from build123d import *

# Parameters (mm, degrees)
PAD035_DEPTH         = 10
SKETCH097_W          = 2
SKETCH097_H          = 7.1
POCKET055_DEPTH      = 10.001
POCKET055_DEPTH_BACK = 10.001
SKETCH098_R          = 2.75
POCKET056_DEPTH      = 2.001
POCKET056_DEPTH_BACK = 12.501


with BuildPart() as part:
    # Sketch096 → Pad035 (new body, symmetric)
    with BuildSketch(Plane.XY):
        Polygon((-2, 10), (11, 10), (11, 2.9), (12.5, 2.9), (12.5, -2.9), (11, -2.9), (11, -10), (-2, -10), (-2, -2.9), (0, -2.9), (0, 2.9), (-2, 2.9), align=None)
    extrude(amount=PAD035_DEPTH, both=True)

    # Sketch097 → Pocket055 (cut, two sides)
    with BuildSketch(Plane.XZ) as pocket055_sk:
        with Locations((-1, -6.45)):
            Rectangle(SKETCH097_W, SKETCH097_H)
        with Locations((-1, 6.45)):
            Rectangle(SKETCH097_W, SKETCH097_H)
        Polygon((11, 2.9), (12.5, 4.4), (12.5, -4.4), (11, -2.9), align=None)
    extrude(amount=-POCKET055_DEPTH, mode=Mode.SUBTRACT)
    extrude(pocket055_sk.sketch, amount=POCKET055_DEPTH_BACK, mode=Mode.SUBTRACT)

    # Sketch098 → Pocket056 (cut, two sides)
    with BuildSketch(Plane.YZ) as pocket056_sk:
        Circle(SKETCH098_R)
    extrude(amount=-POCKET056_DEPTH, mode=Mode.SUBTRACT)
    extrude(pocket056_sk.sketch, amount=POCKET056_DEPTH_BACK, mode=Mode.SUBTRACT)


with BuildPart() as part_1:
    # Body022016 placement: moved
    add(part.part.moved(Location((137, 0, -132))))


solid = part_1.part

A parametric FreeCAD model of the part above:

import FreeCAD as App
import Part
import Sketcher
from FreeCAD import Vector

doc = App.newDocument("Part")
body = doc.addObject("PartDesign::Body", "Body")

# Sketch on XY plane
sketch1 = body.newObject("Sketcher::SketchObject", "Sketch")
sketch1.AttachmentSupport = (doc.getObject("XY_Plane"), [""])
sketch1.MapMode = "FlatFace"
sketch1.addGeometry([
    Part.LineSegment(Vector(11, 10, 0), Vector(-2, 10, 0)),  # 0
    Part.LineSegment(Vector(-2, 10, 0), Vector(-2, 2.9, 0)),  # 1
    Part.LineSegment(Vector(-2, 2.9, 0), Vector(0, 2.9, 0)),  # 2
    Part.LineSegment(Vector(0, 2.9, 0), Vector(0, -2.9, 0)),  # 3
    Part.LineSegment(Vector(0, -2.9, 0), Vector(-2, -2.9, 0)),  # 4
    Part.LineSegment(Vector(-2, -2.9, 0), Vector(-2, -10, 0)),  # 5
    Part.LineSegment(Vector(-2, -10, 0), Vector(11, -10, 0)),  # 6
    Part.LineSegment(Vector(11, -10, 0), Vector(11, -2.9, 0)),  # 7
    Part.LineSegment(Vector(11, -2.9, 0), Vector(12.5, -2.9, 0)),  # 8
    Part.LineSegment(Vector(12.5, -2.9, 0), Vector(12.5, 2.9, 0)),  # 9
    Part.LineSegment(Vector(12.5, 2.9, 0), Vector(11, 2.9, 0)),  # 10
    Part.LineSegment(Vector(11, 2.9, 0), Vector(11, 10, 0)),  # 11
], False)
sketch1.addConstraint([
    Sketcher.Constraint("Coincident", 0, 2, 1, 1),
    Sketcher.Constraint("Coincident", 1, 2, 2, 1),
    Sketcher.Constraint("Coincident", 2, 2, 3, 1),
    Sketcher.Constraint("Coincident", 3, 2, 4, 1),
    Sketcher.Constraint("Coincident", 4, 2, 5, 1),
    Sketcher.Constraint("Coincident", 5, 2, 6, 1),
    Sketcher.Constraint("Coincident", 6, 2, 7, 1),
    Sketcher.Constraint("Coincident", 7, 2, 8, 1),
    Sketcher.Constraint("Coincident", 8, 2, 9, 1),
    Sketcher.Constraint("Coincident", 9, 2, 10, 1),
    Sketcher.Constraint("Coincident", 10, 2, 11, 1),
    Sketcher.Constraint("Coincident", 11, 2, 0, 1),
    Sketcher.Constraint("Horizontal", 0),
    Sketcher.Constraint("Vertical", 1),
    Sketcher.Constraint("Horizontal", 2),
    Sketcher.Constraint("Vertical", 3),
    Sketcher.Constraint("Horizontal", 4),
    Sketcher.Constraint("Vertical", 5),
    Sketcher.Constraint("Horizontal", 6),
    Sketcher.Constraint("Vertical", 7),
    Sketcher.Constraint("Horizontal", 8),
    Sketcher.Constraint("Vertical", 9),
    Sketcher.Constraint("Horizontal", 10),
    Sketcher.Constraint("Vertical", 11),
    Sketcher.Constraint("Symmetric", 2, 2, 3, 2, -1, 1),
    Sketcher.Constraint("Symmetric", 0, 2, 5, 2, -1),
    Sketcher.Constraint("Symmetric", 7, 2, 10, 2, -1),
    Sketcher.Constraint("Horizontal", 4, 2, 7, 2),
    Sketcher.Constraint("DistanceX", 0, 2, 0, 1, 13.0),
    Sketcher.Constraint("DistanceX", 2, 1, 2, 2, 2.0),
    Sketcher.Constraint("DistanceX", 8, 1, 8, 2, 1.5),
    Sketcher.Constraint("DistanceY", 1, 2, 1, 1, 7.1),
    Sketcher.Constraint("DistanceY", 3, 2, 3, 1, 5.8),
])
pad1 = body.newObject("PartDesign::Pad", "Pad")
pad1.Profile = sketch1
pad1.Length = 20
pad1.Midplane = True

# Sketch on XZ plane
sketch2 = body.newObject("Sketcher::SketchObject", "Sketch001")
sketch2.AttachmentSupport = (doc.getObject("XZ_Plane"), [""])
sketch2.MapMode = "FlatFace"
sketch2.addGeometry([
    Part.LineSegment(Vector(-2, -2.9, 0), Vector(-2, -10, 0)),  # 0
    Part.LineSegment(Vector(-2, -10, 0), Vector(0, -10, 0)),  # 1
    Part.LineSegment(Vector(0, -10, 0), Vector(0, -2.9, 0)),  # 2
    Part.LineSegment(Vector(0, -2.9, 0), Vector(-2, -2.9, 0)),  # 3
    Part.LineSegment(Vector(-2, 10, 0), Vector(-2, 2.9, 0)),  # 4
    Part.LineSegment(Vector(-2, 2.9, 0), Vector(0, 2.9, 0)),  # 5
    Part.LineSegment(Vector(0, 2.9, 0), Vector(0, 10, 0)),  # 6
    Part.LineSegment(Vector(0, 10, 0), Vector(-2, 10, 0)),  # 7
    Part.LineSegment(Vector(12.5, 4.4, 0), Vector(11, 2.9, 0)),  # 8
    Part.LineSegment(Vector(11, 2.9, 0), Vector(11, -2.9, 0)),  # 9
    Part.LineSegment(Vector(11, -2.9, 0), Vector(12.5, -4.4, 0)),  # 10
    Part.LineSegment(Vector(12.5, -4.4, 0), Vector(12.5, 4.4, 0)),  # 11
], False)
sketch2.addConstraint([
    Sketcher.Constraint("Coincident", 0, 2, 1, 1),
    Sketcher.Constraint("Coincident", 1, 2, 2, 1),
    Sketcher.Constraint("Coincident", 2, 2, 3, 1),
    Sketcher.Constraint("Coincident", 3, 2, 0, 1),
    Sketcher.Constraint("Coincident", 4, 2, 5, 1),
    Sketcher.Constraint("Coincident", 5, 2, 6, 1),
    Sketcher.Constraint("Coincident", 6, 2, 7, 1),
    Sketcher.Constraint("Coincident", 7, 2, 4, 1),
    Sketcher.Constraint("Coincident", 8, 2, 9, 1),
    Sketcher.Constraint("Coincident", 9, 2, 10, 1),
    Sketcher.Constraint("Coincident", 10, 2, 11, 1),
    Sketcher.Constraint("Coincident", 11, 2, 8, 1),
    Sketcher.Constraint("Vertical", 0),
    Sketcher.Constraint("Horizontal", 1),
    Sketcher.Constraint("Vertical", 2),
    Sketcher.Constraint("Horizontal", 3),
    Sketcher.Constraint("Vertical", 4),
    Sketcher.Constraint("Horizontal", 5),
    Sketcher.Constraint("Vertical", 6),
    Sketcher.Constraint("Horizontal", 7),
    Sketcher.Constraint("Vertical", 9),
    Sketcher.Constraint("Vertical", 11),
    Sketcher.Constraint("Symmetric", 2, 2, 5, 2, -1, 1),
    Sketcher.Constraint("Symmetric", 1, 2, 6, 2, -1),
    Sketcher.Constraint("Perpendicular", 8, 10),
    Sketcher.Constraint("Horizontal", 5, 2, 8, 2),
    Sketcher.Constraint("Horizontal", 3, 2, 9, 2),
    Sketcher.Constraint("Vertical", 3, 2, 4, 2),
    Sketcher.Constraint("Equal", 8, 10),
    Sketcher.Constraint("DistanceX", 1, 1, 1, 2, 2.0),
    Sketcher.Constraint("DistanceY", 0, 2, 0, 1, 7.1),
    Sketcher.Constraint("DistanceY", 9, 2, 9, 1, 5.8),
    Sketcher.Constraint("DistanceY", 11, 1, 11, 2, 8.8),
    Sketcher.Constraint("DistanceX", -1, 1, 8, 2, 11.0),
])
pocket1 = body.newObject("PartDesign::Pocket", "Pocket")
pocket1.Profile = sketch2
pocket1.Type = "ThroughAll"
pocket1.Midplane = True

# Sketch on YZ plane
sketch3 = body.newObject("Sketcher::SketchObject", "Sketch002")
sketch3.AttachmentSupport = (doc.getObject("YZ_Plane"), [""])
sketch3.MapMode = "FlatFace"
sketch3.addGeometry(Part.Circle(Vector(0, 0, 0), Vector(0, 0, 1), 2.8), False)
sketch3.addConstraint([
    Sketcher.Constraint("Coincident", 0, 3, -1, 1),
    Sketcher.Constraint("Diameter", 0, 5.5),
])
pocket2 = body.newObject("PartDesign::Pocket", "Pocket001")
pocket2.Profile = sketch3
pocket2.Type = "ThroughAll"
pocket2.Midplane = True
body2 = doc.addObject("PartDesign::Body", "Body001")
doc.recompute()

body.Placement = App.Placement(Vector(137, 0, -132), App.Rotation(Vector(0, 0, 1), 0))
boolean = body2.newObject("PartDesign::Boolean", "Boolean")
boolean.Type = "Fuse"
boolean.addObjects([body])

doc.recompute()
